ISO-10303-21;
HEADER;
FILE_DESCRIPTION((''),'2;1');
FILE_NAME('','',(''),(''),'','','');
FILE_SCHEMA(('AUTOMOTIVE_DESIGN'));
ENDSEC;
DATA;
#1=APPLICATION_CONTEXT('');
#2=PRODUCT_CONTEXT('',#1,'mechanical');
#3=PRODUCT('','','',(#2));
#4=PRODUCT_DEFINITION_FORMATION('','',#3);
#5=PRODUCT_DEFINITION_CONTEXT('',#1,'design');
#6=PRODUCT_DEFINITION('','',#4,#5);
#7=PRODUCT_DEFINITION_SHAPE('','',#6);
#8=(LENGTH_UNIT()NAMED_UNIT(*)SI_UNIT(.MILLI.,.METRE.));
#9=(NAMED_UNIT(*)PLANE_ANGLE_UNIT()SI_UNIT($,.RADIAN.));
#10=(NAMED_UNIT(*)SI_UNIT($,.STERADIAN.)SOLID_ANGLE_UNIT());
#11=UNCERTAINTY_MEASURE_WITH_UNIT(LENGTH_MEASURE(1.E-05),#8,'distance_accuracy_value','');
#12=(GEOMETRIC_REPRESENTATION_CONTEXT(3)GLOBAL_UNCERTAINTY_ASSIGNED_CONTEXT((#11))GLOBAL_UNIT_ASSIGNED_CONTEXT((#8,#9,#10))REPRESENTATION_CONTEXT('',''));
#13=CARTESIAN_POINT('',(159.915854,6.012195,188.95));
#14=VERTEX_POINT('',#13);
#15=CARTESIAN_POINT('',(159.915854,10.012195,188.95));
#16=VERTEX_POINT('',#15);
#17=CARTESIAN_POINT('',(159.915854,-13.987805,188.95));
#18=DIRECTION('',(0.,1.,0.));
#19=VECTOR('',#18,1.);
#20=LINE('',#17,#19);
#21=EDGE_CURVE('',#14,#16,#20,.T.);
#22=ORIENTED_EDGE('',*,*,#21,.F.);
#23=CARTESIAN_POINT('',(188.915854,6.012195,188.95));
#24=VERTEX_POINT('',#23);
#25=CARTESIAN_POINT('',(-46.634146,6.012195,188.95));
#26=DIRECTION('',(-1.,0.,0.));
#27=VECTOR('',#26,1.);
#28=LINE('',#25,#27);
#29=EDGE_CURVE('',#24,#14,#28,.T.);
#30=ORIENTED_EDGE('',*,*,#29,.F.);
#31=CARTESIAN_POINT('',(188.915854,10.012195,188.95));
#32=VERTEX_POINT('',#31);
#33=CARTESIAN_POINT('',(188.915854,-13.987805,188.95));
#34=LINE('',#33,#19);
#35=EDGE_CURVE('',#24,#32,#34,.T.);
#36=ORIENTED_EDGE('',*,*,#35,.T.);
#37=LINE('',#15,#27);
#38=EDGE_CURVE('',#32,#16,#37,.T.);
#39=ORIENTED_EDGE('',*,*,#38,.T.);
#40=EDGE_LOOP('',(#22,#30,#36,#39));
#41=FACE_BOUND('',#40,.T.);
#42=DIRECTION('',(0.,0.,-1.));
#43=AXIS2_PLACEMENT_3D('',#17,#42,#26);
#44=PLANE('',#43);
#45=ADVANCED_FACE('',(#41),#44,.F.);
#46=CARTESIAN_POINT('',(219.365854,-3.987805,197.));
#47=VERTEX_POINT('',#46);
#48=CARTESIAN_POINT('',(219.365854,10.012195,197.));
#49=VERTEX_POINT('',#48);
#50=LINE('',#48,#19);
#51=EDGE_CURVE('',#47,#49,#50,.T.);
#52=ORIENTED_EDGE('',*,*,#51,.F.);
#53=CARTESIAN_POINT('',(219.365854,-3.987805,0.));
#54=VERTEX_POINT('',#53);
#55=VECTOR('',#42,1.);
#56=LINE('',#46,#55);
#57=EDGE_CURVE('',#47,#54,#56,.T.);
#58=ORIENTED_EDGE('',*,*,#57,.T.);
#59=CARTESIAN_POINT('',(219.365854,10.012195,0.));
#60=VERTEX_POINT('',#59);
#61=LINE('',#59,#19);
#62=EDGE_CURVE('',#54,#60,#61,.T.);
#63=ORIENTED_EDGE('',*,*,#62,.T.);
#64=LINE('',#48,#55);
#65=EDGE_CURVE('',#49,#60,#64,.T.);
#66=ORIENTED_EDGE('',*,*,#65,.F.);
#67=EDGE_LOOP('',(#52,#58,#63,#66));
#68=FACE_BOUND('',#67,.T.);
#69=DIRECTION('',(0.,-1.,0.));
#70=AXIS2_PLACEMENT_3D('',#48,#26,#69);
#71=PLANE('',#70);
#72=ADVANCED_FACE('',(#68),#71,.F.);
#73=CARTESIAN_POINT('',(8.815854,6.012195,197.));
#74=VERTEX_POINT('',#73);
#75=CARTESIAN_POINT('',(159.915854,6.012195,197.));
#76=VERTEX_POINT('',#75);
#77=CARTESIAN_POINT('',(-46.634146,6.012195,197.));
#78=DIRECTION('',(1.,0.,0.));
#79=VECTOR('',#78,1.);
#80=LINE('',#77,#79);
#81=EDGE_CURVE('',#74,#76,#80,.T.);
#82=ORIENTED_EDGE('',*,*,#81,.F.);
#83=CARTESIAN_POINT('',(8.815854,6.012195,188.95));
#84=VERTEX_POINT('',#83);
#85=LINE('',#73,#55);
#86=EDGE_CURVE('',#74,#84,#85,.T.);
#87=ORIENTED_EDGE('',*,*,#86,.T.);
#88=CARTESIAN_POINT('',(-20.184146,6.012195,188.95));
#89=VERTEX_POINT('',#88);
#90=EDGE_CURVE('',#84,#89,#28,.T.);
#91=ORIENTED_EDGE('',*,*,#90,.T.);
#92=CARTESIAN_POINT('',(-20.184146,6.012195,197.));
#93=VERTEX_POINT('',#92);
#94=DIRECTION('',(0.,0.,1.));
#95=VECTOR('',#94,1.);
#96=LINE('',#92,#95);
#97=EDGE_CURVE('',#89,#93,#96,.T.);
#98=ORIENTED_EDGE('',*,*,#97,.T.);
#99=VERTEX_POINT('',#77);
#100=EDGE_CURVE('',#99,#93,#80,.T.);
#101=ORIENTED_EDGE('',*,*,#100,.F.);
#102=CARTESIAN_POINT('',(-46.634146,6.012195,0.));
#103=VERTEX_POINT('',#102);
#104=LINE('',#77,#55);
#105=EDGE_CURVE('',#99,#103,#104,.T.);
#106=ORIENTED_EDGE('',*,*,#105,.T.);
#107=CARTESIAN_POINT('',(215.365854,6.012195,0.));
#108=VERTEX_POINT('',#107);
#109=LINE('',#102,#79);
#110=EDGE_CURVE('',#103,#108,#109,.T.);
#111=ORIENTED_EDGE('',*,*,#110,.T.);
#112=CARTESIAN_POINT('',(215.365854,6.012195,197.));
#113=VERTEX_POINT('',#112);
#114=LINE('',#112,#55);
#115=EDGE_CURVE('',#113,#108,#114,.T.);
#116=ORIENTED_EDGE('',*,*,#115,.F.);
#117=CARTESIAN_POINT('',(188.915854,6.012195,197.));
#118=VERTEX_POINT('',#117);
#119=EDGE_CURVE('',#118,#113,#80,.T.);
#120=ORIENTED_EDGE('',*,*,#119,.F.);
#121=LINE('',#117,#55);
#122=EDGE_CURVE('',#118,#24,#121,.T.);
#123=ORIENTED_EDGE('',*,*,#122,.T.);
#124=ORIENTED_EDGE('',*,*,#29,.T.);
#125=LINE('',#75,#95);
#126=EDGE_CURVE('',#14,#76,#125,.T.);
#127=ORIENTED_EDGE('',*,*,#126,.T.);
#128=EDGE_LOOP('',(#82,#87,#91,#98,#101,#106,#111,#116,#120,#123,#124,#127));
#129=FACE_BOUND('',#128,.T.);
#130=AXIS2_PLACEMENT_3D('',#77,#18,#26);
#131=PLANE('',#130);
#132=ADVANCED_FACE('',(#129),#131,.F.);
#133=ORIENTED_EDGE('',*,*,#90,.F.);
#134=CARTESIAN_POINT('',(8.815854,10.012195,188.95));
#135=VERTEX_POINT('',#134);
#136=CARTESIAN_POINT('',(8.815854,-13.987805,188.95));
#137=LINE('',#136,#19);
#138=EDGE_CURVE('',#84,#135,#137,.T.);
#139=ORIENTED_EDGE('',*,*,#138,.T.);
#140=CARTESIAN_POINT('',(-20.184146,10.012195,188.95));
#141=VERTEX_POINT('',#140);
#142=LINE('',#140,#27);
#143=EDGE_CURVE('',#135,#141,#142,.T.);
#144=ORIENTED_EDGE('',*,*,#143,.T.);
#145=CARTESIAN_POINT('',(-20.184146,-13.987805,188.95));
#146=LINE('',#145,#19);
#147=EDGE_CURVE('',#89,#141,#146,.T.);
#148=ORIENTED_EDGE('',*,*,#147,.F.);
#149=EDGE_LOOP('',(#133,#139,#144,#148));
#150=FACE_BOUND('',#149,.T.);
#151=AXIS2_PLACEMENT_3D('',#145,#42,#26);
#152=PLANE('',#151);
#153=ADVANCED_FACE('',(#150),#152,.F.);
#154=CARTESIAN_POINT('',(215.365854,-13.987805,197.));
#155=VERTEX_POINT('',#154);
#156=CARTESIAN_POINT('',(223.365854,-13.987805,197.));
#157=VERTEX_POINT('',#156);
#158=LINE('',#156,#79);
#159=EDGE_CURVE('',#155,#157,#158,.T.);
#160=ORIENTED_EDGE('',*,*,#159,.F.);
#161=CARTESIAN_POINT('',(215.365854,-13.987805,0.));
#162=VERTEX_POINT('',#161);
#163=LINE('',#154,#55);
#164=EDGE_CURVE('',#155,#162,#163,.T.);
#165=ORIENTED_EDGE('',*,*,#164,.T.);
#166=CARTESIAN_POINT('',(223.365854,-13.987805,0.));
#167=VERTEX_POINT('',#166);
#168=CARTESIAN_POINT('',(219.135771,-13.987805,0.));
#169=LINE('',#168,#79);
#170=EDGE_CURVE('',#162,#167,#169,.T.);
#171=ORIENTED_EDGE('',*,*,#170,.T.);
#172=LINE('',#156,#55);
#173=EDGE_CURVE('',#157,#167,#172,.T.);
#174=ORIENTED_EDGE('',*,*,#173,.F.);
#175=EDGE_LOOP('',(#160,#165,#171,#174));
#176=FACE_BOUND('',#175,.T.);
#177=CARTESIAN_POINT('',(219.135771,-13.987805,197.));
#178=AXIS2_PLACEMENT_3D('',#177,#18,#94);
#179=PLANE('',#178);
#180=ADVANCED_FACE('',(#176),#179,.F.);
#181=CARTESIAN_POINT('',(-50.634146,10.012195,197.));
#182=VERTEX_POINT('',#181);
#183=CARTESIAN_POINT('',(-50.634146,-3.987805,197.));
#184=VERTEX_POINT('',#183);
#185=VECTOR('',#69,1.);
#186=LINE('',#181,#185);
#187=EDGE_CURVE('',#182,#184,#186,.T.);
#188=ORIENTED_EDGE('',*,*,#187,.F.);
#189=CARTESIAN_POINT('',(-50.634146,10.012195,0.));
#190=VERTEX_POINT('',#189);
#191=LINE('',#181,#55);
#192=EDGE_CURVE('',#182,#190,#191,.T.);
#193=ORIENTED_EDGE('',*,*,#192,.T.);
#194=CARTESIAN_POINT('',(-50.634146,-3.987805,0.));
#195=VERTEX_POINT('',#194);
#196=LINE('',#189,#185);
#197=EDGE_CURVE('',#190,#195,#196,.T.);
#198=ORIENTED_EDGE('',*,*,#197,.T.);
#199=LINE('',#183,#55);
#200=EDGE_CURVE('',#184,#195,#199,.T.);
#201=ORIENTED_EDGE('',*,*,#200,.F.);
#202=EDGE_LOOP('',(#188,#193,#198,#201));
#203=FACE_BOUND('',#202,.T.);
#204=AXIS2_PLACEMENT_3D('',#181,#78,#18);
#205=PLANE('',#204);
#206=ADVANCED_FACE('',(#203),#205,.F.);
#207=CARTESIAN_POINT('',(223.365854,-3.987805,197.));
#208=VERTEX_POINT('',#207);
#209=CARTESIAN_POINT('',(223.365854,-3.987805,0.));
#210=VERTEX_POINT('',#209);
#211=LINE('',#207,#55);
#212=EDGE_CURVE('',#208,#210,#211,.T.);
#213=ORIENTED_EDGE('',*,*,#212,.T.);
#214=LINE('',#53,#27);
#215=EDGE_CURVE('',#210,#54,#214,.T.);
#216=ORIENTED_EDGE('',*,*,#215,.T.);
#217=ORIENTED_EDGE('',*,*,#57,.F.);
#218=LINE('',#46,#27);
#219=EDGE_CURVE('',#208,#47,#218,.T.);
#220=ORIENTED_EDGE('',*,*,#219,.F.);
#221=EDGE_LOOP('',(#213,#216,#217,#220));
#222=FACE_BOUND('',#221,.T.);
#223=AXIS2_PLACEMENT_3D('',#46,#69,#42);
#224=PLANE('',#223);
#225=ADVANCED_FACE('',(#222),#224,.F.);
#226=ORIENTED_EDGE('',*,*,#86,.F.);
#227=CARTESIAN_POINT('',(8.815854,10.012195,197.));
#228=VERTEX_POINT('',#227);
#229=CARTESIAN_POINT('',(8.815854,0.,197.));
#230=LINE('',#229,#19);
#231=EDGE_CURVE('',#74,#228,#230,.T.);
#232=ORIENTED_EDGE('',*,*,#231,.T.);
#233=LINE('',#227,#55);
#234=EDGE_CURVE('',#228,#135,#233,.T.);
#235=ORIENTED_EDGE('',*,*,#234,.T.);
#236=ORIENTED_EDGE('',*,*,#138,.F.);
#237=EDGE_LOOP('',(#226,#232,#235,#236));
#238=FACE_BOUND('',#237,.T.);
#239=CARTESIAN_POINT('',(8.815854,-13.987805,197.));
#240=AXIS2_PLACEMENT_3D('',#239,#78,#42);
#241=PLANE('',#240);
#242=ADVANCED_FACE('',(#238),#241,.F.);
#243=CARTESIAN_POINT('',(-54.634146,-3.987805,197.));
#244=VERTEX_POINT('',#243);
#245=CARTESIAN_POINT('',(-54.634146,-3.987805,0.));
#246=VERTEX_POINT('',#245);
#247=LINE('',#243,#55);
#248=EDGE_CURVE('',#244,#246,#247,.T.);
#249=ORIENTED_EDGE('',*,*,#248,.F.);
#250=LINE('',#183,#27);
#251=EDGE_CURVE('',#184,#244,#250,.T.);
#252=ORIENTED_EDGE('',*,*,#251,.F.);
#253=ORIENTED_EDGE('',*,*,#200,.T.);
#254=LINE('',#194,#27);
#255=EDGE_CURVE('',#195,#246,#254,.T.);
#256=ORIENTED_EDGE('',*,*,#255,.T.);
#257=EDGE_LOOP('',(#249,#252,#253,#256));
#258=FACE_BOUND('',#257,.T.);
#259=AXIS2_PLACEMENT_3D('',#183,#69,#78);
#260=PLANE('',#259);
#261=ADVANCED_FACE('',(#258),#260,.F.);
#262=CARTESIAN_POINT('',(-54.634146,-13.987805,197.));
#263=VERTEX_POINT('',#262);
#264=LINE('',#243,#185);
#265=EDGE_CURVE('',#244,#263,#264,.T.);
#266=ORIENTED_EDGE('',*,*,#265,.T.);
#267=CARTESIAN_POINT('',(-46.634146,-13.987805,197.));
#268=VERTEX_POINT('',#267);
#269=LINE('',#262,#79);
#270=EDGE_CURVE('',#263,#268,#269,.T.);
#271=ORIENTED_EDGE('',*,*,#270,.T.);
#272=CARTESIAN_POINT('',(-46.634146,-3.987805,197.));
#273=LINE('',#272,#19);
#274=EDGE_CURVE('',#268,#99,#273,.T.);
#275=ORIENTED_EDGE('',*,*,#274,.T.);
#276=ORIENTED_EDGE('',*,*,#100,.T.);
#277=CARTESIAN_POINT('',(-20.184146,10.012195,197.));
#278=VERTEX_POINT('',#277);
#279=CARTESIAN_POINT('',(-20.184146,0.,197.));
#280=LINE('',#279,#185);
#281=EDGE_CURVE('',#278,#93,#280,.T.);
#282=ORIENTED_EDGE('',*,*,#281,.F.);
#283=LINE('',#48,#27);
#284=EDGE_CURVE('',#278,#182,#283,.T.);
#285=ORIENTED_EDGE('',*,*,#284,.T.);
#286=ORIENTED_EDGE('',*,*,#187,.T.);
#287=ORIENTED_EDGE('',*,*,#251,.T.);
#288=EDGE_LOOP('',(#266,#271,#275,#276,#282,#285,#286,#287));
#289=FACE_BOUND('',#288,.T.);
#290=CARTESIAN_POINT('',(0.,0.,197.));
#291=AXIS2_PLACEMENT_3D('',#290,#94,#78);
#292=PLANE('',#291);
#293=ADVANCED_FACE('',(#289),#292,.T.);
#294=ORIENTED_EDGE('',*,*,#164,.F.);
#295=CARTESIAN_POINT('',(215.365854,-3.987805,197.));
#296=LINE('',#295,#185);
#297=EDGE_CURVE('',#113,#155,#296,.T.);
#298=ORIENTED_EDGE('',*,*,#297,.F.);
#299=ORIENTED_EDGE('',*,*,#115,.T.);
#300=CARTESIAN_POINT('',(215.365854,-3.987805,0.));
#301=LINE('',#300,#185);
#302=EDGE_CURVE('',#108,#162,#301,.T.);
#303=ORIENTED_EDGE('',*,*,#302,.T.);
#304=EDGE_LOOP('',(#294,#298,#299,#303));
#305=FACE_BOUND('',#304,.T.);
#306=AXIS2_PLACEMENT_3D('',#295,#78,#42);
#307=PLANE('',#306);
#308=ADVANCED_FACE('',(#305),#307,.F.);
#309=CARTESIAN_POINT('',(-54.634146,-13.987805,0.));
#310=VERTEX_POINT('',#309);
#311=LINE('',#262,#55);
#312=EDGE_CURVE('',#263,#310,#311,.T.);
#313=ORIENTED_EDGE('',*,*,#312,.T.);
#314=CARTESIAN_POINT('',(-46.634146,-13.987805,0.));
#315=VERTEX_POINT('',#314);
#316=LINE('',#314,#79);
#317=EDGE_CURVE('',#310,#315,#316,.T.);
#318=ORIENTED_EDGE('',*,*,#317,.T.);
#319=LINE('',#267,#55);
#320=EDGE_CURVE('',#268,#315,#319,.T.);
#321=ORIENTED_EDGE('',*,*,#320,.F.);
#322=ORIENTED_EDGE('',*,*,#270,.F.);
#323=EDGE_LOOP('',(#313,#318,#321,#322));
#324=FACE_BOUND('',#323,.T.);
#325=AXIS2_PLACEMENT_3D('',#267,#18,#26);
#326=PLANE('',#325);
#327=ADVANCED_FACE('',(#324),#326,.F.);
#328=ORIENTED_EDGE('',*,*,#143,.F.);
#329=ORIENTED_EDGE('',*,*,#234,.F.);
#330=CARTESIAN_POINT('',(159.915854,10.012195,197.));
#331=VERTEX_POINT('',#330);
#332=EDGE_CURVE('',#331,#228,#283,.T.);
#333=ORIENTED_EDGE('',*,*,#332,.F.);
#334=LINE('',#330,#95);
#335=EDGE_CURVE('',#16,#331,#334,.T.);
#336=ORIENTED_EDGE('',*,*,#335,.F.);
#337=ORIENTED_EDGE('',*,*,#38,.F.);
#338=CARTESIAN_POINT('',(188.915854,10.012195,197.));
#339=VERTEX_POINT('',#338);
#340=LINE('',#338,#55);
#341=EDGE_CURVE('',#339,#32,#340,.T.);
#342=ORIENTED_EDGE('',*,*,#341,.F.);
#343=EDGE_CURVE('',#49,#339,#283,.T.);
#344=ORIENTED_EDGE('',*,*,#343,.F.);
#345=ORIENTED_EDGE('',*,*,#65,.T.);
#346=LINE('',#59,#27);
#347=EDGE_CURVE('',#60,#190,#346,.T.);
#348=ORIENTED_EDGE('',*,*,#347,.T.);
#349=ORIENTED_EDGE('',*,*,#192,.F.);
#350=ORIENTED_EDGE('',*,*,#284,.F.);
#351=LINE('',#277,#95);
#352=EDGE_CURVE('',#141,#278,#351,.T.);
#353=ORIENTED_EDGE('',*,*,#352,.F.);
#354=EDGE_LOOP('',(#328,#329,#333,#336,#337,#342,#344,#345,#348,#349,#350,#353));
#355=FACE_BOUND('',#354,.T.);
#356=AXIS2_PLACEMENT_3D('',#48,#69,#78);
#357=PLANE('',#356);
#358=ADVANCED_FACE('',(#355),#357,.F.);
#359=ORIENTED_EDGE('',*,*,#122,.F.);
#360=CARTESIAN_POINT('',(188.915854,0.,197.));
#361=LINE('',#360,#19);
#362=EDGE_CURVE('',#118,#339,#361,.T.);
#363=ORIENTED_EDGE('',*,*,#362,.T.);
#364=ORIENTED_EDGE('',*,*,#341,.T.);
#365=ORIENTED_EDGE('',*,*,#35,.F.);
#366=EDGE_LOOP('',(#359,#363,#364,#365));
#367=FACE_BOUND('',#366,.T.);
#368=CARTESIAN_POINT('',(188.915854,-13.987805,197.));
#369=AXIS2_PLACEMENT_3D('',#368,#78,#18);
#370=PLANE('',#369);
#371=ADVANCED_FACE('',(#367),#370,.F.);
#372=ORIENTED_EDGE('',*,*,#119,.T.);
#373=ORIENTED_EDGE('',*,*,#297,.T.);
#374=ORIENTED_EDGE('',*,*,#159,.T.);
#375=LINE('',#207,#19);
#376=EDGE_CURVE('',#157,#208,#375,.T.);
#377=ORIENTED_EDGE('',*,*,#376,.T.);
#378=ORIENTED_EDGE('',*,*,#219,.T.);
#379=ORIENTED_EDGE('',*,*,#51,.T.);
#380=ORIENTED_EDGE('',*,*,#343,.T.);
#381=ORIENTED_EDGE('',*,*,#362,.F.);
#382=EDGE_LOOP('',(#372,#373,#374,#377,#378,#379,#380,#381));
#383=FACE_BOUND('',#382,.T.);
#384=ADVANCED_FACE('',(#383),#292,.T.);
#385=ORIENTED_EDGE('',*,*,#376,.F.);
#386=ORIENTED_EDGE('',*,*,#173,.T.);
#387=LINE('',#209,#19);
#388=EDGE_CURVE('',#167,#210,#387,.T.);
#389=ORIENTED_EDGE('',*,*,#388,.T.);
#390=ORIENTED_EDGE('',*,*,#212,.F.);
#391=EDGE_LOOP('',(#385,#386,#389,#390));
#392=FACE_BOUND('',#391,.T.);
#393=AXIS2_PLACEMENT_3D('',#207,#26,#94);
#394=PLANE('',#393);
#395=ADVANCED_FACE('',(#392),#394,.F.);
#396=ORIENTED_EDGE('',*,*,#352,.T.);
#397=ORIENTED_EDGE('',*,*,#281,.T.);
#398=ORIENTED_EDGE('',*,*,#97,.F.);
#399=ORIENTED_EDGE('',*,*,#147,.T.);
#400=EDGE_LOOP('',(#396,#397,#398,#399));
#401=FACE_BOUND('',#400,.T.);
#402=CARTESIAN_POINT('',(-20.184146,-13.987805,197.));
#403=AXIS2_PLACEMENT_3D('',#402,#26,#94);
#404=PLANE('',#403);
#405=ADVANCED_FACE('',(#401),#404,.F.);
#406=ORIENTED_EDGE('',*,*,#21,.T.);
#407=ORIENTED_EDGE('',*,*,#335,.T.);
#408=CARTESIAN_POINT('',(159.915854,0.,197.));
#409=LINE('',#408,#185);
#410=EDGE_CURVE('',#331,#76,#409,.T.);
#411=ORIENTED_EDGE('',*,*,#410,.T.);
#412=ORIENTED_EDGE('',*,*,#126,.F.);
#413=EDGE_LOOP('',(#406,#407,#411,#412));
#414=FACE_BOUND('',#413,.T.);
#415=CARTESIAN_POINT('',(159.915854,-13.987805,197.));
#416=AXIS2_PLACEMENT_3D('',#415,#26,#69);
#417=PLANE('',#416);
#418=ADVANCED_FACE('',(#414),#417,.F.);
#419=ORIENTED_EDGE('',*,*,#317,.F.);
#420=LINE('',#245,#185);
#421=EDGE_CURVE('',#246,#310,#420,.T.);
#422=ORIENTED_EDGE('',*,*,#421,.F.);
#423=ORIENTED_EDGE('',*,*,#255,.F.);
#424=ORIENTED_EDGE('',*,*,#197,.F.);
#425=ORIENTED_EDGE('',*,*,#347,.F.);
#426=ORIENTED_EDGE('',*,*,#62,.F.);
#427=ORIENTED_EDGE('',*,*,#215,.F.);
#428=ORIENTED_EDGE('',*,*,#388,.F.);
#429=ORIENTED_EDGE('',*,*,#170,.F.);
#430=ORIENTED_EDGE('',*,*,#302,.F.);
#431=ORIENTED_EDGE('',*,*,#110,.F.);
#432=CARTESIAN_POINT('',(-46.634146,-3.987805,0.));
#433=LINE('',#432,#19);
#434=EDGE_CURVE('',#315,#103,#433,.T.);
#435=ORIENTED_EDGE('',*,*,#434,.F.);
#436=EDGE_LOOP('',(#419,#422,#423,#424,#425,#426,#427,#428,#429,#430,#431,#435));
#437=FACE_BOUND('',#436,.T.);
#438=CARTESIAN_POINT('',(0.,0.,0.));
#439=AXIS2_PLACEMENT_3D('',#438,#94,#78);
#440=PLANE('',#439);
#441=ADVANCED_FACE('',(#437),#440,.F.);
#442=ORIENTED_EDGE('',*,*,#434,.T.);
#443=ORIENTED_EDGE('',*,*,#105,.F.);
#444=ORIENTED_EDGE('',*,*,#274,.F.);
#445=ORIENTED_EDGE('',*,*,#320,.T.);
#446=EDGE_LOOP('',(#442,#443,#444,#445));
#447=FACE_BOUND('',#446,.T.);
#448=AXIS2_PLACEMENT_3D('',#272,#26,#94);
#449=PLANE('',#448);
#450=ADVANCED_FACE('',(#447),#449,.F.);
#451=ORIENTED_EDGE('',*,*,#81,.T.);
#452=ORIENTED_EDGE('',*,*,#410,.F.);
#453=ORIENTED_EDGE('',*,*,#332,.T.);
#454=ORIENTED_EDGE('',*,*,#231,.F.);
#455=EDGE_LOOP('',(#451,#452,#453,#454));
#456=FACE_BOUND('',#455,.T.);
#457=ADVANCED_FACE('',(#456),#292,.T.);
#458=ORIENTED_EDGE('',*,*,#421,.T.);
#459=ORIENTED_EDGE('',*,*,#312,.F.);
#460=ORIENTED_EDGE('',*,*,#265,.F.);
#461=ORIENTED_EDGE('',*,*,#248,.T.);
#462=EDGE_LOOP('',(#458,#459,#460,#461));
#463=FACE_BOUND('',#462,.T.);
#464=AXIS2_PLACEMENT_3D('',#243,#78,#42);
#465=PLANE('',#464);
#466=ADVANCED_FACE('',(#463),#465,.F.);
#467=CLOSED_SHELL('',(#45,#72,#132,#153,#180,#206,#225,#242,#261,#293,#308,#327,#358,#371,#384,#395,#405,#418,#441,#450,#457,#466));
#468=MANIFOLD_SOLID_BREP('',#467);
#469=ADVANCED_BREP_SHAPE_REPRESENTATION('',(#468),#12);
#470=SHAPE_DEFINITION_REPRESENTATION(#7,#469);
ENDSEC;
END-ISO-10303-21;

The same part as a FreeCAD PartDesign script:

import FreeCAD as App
import Part
import Sketcher


def add_polygon(sketch, points):
    """Adds a closed chain of lines whose ends are joined by coincident constraints."""
    first, n = sketch.GeometryCount, len(points)
    for a, b in zip(points, points[1:] + points[:1]):
        sketch.addGeometry(Part.LineSegment(App.Vector(*a, 0), App.Vector(*b, 0)), False)
    for i in range(n):
        sketch.addConstraint(Sketcher.Constraint("Coincident", first + i, 2, first + (i + 1) % n, 1))

doc = App.newDocument("Part")
body = doc.addObject("PartDesign::Body", "Body")

# Sketch on XY plane
sketch1 = body.newObject("Sketcher::SketchObject", "Sketch")
sketch1.AttachmentSupport = (doc.getObject("XY_Plane"), [""])
sketch1.MapMode = "FlatFace"
add_polygon(sketch1, [(219.4, 10), (-50.6, 10), (-50.6, -4), (-54.6, -4), (-54.6, -14), (-46.6, -14), (-46.6, 6), (215.4, 6), (215.4, -14), (223.4, -14), (223.4, -4), (219.4, -4)])  # lines 0-11
sketch1.addConstraint(Sketcher.Constraint("Horizontal", 0))
sketch1.addConstraint(Sketcher.Constraint("Vertical", 1))
sketch1.addConstraint(Sketcher.Constraint("Horizontal", 2))
sketch1.addConstraint(Sketcher.Constraint("Vertical", 3))
sketch1.addConstraint(Sketcher.Constraint("Horizontal", 4))
sketch1.addConstraint(Sketcher.Constraint("Vertical", 5))
sketch1.addConstraint(Sketcher.Constraint("Horizontal", 6))
sketch1.addConstraint(Sketcher.Constraint("Vertical", 7))
sketch1.addConstraint(Sketcher.Constraint("Horizontal", 8))
sketch1.addConstraint(Sketcher.Constraint("Vertical", 9))
sketch1.addConstraint(Sketcher.Constraint("Horizontal", 10))
sketch1.addConstraint(Sketcher.Constraint("Vertical", 11))
sketch1.addConstraint(Sketcher.Constraint("Horizontal", 4, 2, 7, 2))
sketch1.addConstraint(Sketcher.Constraint("Horizontal", 2, 2, 9, 2))
sketch1.addConstraint(Sketcher.Constraint("Equal", 4, 8))
sketch1.addConstraint(Sketcher.Constraint("Equal", 2, 10))
sketch1.addConstraint(Sketcher.Constraint("DistanceX", 0, 2, 0, 1, 270.0))
sketch1.addConstraint(Sketcher.Constraint("DistanceX", 2, 2, 2, 1, 4.0))
sketch1.addConstraint(Sketcher.Constraint("DistanceX", 4, 1, 4, 2, 8.0))
sketch1.addConstraint(Sketcher.Constraint("DistanceY", 1, 2, 1, 1, 14.0))
sketch1.addConstraint(Sketcher.Constraint("DistanceY", 3, 2, 3, 1, 10.0))
sketch1.addConstraint(Sketcher.Constraint("DistanceY", 5, 1, 5, 2, 20.0))
sketch1.addConstraint(Sketcher.Constraint("DistanceX", 0, 2, -1, 1, 50.634146))
sketch1.addConstraint(Sketcher.Constraint("DistanceY", -1, 1, 0, 2, 10.012195))
pad1 = body.newObject("PartDesign::Pad", "Pad")
pad1.Profile = sketch1
pad1.Length = 197

# Sketch on XZ plane
sketch2 = body.newObject("Sketcher::SketchObject", "Sketch001")
sketch2.AttachmentSupport = (doc.getObject("XZ_Plane"), [""])
sketch2.MapMode = "FlatFace"
sketch2.AttachmentOffset = App.Placement(App.Vector(0, 0, -10.012195), App.Rotation())
add_polygon(sketch2, [(-20, 189), (-20, 197), (9, 197), (9, 189)])  # lines 0-3
add_polygon(sketch2, [(160, 189), (160, 197), (189, 197), (189, 189)])  # lines 4-7
sketch2.addConstraint(Sketcher.Constraint("Vertical", 0))
sketch2.addConstraint(Sketcher.Constraint("Horizontal", 1))
sketch2.addConstraint(Sketcher.Constraint("Vertical", 2))
sketch2.addConstraint(Sketcher.Constraint("Horizontal", 3))
sketch2.addConstraint(Sketcher.Constraint("Vertical", 4))
sketch2.addConstraint(Sketcher.Constraint("Horizontal", 5))
sketch2.addConstraint(Sketcher.Constraint("Vertical", 6))
sketch2.addConstraint(Sketcher.Constraint("Horizontal", 7))
sketch2.addConstraint(Sketcher.Constraint("Horizontal", 1, 2, 4, 2))
sketch2.addConstraint(Sketcher.Constraint("Horizontal", 3, 2, 6, 2))
sketch2.addConstraint(Sketcher.Constraint("Equal", 3, 5))
sketch2.addConstraint(Sketcher.Constraint("DistanceX", 1, 1, 1, 2, 29.0))
sketch2.addConstraint(Sketcher.Constraint("DistanceY", -1, 1, 0, 2, 197.0))
sketch2.addConstraint(Sketcher.Constraint("DistanceY", 0, 1, 0, 2, 8.05))
sketch2.addConstraint(Sketcher.Constraint("DistanceX", 1, 2, 4, 2, 151.1))
sketch2.addConstraint(Sketcher.Constraint("DistanceX", 0, 2, -1, 1, 20.184146))
pocket1 = body.newObject("PartDesign::Pocket", "Pocket")
pocket1.Profile = sketch2
pocket1.Type = "ThroughAll"
pocket1.Reversed = True

doc.recompute()
